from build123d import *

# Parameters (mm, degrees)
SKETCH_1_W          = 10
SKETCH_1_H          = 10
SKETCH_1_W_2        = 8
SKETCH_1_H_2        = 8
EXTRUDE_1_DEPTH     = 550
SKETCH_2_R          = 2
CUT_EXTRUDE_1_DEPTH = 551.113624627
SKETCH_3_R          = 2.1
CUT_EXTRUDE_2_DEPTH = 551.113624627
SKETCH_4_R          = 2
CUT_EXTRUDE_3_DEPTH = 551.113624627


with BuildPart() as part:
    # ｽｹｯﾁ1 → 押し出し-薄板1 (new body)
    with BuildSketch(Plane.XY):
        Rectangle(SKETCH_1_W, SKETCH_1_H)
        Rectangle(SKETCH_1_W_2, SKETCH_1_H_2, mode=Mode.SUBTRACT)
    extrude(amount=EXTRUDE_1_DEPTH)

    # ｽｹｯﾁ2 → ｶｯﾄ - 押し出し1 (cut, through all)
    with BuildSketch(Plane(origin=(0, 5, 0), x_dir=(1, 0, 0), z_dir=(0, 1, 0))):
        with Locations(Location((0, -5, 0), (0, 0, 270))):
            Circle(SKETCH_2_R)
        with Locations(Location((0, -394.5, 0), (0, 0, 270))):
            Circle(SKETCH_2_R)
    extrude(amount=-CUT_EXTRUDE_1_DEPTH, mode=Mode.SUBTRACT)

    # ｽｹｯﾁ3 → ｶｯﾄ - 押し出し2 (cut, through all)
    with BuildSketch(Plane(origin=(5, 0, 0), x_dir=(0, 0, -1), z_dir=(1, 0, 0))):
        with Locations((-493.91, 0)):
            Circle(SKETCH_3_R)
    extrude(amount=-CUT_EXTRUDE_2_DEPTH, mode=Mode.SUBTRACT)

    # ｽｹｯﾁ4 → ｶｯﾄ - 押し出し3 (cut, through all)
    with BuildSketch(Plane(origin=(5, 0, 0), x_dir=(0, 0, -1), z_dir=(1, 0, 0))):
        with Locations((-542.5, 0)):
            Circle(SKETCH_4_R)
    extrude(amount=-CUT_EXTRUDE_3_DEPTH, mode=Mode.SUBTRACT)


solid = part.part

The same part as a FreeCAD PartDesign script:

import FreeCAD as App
import Part
import Sketcher
Q = App.Units.Quantity

doc = App.newDocument("Part")
body = doc.addObject("PartDesign::Body", "Body")

# Sketch on XY plane
sketch1 = body.newObject("Sketcher::SketchObject", "Sketch")
sketch1.AttachmentSupport = (doc.getObject("XY_Plane"), [""])
sketch1.MapMode = "FlatFace"
sketch1.addGeometry([
    Part.LineSegment(App.Vector(-5, 5, 0), App.Vector(-5, -5, 0)),  # 0
    Part.LineSegment(App.Vector(-5, -5, 0), App.Vector(5, -5, 0)),  # 1
    Part.LineSegment(App.Vector(5, -5, 0), App.Vector(5, 5, 0)),  # 2
    Part.LineSegment(App.Vector(5, 5, 0), App.Vector(-5, 5, 0)),  # 3
    Part.LineSegment(App.Vector(4, -4, 0), App.Vector(-4, -4, 0)),  # 4
    Part.LineSegment(App.Vector(-4, -4, 0), App.Vector(-4, 4, 0)),  # 5
    Part.LineSegment(App.Vector(-4, 4, 0), App.Vector(4, 4, 0)),  # 6
    Part.LineSegment(App.Vector(4, 4, 0), App.Vector(4, -4, 0)),  # 7
], False)
sketch1.addConstraint([
    Sketcher.Constraint("Coincident", 0, 2, 1, 1),
    Sketcher.Constraint("Coincident", 1, 2, 2, 1),
    Sketcher.Constraint("Coincident", 2, 2, 3, 1),
    Sketcher.Constraint("Coincident", 3, 2, 0, 1),
    Sketcher.Constraint("Coincident", 4, 2, 5, 1),
    Sketcher.Constraint("Coincident", 5, 2, 6, 1),
    Sketcher.Constraint("Coincident", 6, 2, 7, 1),
    Sketcher.Constraint("Coincident", 7, 2, 4, 1),
    Sketcher.Constraint("Vertical", 0),
    Sketcher.Constraint("Horizontal", 1),
    Sketcher.Constraint("Vertical", 2),
    Sketcher.Constraint("Horizontal", 3),
    Sketcher.Constraint("Horizontal", 4),
    Sketcher.Constraint("Vertical", 5),
    Sketcher.Constraint("Horizontal", 6),
    Sketcher.Constraint("Vertical", 7),
    Sketcher.Constraint("Symmetric", 0, 2, 2, 2, -1, 1),
    Sketcher.Constraint("Symmetric", 4, 2, 6, 2, -1, 1),
    Sketcher.Constraint("Equal", 3, 0),
    Sketcher.Constraint("Equal", 6, 5),
    Sketcher.Constraint("DistanceX", 1, 1, 1, 2, Q("10 mm")),
    Sketcher.Constraint("DistanceX", 4, 2, 4, 1, Q("8 mm")),
])
pad1 = body.newObject("PartDesign::Pad", "Pad")
pad1.Profile = sketch1
pad1.Length = 550

# Sketch on XZ plane
sketch2 = body.newObject("Sketcher::SketchObject", "Sketch001")
sketch2.AttachmentSupport = (doc.getObject("XZ_Plane"), [""])
sketch2.MapMode = "FlatFace"
sketch2.AttachmentOffset = App.Placement(App.Vector(0, 0, -5), App.Rotation())
sketch2.addGeometry([
    Part.Circle(App.Vector(0, 5, 0), App.Vector(0, 0, 1), 2),
    Part.Circle(App.Vector(0, 394.5, 0), App.Vector(0, 0, 1), 2),
], False)
sketch2.addConstraint([
    Sketcher.Constraint("Equal", 0, 1),
    Sketcher.Constraint("PointOnObject", 0, 3, -2),
    Sketcher.Constraint("PointOnObject", 1, 3, -2),
    Sketcher.Constraint("Diameter", 0, Q("4 mm")),
    Sketcher.Constraint("DistanceY", -1, 1, 0, 3, Q("5 mm")),
    Sketcher.Constraint("DistanceY", -1, 1, 1, 3, Q("394.5 mm")),
])
pocket1 = body.newObject("PartDesign::Pocket", "Pocket")
pocket1.Profile = sketch2
pocket1.Type = "ThroughAll"
pocket1.Reversed = True

# Sketch on YZ plane
sketch3 = body.newObject("Sketcher::SketchObject", "Sketch002")
sketch3.AttachmentSupport = (doc.getObject("YZ_Plane"), [""])
sketch3.MapMode = "FlatFace"
sketch3.AttachmentOffset = App.Placement(App.Vector(0, 0, 5), App.Rotation())
sketch3.addGeometry(Part.Circle(App.Vector(0, 493.9, 0), App.Vector(0, 0, 1), 2.1), False)
sketch3.addConstraint([
    Sketcher.Constraint("PointOnObject", 0, 3, -2),
    Sketcher.Constraint("Diameter", 0, Q("4.2 mm")),
    Sketcher.Constraint("DistanceY", -1, 1, 0, 3, Q("493.91 mm")),
])
pocket2 = body.newObject("PartDesign::Pocket", "Pocket001")
pocket2.Profile = sketch3
pocket2.Type = "ThroughAll"

# Sketch on YZ plane
sketch4 = body.newObject("Sketcher::SketchObject", "Sketch003")
sketch4.AttachmentSupport = (doc.getObject("YZ_Plane"), [""])
sketch4.MapMode = "FlatFace"
sketch4.AttachmentOffset = App.Placement(App.Vector(0, 0, 5), App.Rotation())
sketch4.addGeometry(Part.Circle(App.Vector(0, 542.5, 0), App.Vector(0, 0, 1), 2), False)
sketch4.addConstraint([
    Sketcher.Constraint("PointOnObject", 0, 3, -2),
    Sketcher.Constraint("Diameter", 0, Q("4 mm")),
    Sketcher.Constraint("DistanceY", -1, 1, 0, 3, Q("542.5 mm")),
])
pocket3 = body.newObject("PartDesign::Pocket", "Pocket002")
pocket3.Profile = sketch4
pocket3.Type = "ThroughAll"

doc.recompute()
